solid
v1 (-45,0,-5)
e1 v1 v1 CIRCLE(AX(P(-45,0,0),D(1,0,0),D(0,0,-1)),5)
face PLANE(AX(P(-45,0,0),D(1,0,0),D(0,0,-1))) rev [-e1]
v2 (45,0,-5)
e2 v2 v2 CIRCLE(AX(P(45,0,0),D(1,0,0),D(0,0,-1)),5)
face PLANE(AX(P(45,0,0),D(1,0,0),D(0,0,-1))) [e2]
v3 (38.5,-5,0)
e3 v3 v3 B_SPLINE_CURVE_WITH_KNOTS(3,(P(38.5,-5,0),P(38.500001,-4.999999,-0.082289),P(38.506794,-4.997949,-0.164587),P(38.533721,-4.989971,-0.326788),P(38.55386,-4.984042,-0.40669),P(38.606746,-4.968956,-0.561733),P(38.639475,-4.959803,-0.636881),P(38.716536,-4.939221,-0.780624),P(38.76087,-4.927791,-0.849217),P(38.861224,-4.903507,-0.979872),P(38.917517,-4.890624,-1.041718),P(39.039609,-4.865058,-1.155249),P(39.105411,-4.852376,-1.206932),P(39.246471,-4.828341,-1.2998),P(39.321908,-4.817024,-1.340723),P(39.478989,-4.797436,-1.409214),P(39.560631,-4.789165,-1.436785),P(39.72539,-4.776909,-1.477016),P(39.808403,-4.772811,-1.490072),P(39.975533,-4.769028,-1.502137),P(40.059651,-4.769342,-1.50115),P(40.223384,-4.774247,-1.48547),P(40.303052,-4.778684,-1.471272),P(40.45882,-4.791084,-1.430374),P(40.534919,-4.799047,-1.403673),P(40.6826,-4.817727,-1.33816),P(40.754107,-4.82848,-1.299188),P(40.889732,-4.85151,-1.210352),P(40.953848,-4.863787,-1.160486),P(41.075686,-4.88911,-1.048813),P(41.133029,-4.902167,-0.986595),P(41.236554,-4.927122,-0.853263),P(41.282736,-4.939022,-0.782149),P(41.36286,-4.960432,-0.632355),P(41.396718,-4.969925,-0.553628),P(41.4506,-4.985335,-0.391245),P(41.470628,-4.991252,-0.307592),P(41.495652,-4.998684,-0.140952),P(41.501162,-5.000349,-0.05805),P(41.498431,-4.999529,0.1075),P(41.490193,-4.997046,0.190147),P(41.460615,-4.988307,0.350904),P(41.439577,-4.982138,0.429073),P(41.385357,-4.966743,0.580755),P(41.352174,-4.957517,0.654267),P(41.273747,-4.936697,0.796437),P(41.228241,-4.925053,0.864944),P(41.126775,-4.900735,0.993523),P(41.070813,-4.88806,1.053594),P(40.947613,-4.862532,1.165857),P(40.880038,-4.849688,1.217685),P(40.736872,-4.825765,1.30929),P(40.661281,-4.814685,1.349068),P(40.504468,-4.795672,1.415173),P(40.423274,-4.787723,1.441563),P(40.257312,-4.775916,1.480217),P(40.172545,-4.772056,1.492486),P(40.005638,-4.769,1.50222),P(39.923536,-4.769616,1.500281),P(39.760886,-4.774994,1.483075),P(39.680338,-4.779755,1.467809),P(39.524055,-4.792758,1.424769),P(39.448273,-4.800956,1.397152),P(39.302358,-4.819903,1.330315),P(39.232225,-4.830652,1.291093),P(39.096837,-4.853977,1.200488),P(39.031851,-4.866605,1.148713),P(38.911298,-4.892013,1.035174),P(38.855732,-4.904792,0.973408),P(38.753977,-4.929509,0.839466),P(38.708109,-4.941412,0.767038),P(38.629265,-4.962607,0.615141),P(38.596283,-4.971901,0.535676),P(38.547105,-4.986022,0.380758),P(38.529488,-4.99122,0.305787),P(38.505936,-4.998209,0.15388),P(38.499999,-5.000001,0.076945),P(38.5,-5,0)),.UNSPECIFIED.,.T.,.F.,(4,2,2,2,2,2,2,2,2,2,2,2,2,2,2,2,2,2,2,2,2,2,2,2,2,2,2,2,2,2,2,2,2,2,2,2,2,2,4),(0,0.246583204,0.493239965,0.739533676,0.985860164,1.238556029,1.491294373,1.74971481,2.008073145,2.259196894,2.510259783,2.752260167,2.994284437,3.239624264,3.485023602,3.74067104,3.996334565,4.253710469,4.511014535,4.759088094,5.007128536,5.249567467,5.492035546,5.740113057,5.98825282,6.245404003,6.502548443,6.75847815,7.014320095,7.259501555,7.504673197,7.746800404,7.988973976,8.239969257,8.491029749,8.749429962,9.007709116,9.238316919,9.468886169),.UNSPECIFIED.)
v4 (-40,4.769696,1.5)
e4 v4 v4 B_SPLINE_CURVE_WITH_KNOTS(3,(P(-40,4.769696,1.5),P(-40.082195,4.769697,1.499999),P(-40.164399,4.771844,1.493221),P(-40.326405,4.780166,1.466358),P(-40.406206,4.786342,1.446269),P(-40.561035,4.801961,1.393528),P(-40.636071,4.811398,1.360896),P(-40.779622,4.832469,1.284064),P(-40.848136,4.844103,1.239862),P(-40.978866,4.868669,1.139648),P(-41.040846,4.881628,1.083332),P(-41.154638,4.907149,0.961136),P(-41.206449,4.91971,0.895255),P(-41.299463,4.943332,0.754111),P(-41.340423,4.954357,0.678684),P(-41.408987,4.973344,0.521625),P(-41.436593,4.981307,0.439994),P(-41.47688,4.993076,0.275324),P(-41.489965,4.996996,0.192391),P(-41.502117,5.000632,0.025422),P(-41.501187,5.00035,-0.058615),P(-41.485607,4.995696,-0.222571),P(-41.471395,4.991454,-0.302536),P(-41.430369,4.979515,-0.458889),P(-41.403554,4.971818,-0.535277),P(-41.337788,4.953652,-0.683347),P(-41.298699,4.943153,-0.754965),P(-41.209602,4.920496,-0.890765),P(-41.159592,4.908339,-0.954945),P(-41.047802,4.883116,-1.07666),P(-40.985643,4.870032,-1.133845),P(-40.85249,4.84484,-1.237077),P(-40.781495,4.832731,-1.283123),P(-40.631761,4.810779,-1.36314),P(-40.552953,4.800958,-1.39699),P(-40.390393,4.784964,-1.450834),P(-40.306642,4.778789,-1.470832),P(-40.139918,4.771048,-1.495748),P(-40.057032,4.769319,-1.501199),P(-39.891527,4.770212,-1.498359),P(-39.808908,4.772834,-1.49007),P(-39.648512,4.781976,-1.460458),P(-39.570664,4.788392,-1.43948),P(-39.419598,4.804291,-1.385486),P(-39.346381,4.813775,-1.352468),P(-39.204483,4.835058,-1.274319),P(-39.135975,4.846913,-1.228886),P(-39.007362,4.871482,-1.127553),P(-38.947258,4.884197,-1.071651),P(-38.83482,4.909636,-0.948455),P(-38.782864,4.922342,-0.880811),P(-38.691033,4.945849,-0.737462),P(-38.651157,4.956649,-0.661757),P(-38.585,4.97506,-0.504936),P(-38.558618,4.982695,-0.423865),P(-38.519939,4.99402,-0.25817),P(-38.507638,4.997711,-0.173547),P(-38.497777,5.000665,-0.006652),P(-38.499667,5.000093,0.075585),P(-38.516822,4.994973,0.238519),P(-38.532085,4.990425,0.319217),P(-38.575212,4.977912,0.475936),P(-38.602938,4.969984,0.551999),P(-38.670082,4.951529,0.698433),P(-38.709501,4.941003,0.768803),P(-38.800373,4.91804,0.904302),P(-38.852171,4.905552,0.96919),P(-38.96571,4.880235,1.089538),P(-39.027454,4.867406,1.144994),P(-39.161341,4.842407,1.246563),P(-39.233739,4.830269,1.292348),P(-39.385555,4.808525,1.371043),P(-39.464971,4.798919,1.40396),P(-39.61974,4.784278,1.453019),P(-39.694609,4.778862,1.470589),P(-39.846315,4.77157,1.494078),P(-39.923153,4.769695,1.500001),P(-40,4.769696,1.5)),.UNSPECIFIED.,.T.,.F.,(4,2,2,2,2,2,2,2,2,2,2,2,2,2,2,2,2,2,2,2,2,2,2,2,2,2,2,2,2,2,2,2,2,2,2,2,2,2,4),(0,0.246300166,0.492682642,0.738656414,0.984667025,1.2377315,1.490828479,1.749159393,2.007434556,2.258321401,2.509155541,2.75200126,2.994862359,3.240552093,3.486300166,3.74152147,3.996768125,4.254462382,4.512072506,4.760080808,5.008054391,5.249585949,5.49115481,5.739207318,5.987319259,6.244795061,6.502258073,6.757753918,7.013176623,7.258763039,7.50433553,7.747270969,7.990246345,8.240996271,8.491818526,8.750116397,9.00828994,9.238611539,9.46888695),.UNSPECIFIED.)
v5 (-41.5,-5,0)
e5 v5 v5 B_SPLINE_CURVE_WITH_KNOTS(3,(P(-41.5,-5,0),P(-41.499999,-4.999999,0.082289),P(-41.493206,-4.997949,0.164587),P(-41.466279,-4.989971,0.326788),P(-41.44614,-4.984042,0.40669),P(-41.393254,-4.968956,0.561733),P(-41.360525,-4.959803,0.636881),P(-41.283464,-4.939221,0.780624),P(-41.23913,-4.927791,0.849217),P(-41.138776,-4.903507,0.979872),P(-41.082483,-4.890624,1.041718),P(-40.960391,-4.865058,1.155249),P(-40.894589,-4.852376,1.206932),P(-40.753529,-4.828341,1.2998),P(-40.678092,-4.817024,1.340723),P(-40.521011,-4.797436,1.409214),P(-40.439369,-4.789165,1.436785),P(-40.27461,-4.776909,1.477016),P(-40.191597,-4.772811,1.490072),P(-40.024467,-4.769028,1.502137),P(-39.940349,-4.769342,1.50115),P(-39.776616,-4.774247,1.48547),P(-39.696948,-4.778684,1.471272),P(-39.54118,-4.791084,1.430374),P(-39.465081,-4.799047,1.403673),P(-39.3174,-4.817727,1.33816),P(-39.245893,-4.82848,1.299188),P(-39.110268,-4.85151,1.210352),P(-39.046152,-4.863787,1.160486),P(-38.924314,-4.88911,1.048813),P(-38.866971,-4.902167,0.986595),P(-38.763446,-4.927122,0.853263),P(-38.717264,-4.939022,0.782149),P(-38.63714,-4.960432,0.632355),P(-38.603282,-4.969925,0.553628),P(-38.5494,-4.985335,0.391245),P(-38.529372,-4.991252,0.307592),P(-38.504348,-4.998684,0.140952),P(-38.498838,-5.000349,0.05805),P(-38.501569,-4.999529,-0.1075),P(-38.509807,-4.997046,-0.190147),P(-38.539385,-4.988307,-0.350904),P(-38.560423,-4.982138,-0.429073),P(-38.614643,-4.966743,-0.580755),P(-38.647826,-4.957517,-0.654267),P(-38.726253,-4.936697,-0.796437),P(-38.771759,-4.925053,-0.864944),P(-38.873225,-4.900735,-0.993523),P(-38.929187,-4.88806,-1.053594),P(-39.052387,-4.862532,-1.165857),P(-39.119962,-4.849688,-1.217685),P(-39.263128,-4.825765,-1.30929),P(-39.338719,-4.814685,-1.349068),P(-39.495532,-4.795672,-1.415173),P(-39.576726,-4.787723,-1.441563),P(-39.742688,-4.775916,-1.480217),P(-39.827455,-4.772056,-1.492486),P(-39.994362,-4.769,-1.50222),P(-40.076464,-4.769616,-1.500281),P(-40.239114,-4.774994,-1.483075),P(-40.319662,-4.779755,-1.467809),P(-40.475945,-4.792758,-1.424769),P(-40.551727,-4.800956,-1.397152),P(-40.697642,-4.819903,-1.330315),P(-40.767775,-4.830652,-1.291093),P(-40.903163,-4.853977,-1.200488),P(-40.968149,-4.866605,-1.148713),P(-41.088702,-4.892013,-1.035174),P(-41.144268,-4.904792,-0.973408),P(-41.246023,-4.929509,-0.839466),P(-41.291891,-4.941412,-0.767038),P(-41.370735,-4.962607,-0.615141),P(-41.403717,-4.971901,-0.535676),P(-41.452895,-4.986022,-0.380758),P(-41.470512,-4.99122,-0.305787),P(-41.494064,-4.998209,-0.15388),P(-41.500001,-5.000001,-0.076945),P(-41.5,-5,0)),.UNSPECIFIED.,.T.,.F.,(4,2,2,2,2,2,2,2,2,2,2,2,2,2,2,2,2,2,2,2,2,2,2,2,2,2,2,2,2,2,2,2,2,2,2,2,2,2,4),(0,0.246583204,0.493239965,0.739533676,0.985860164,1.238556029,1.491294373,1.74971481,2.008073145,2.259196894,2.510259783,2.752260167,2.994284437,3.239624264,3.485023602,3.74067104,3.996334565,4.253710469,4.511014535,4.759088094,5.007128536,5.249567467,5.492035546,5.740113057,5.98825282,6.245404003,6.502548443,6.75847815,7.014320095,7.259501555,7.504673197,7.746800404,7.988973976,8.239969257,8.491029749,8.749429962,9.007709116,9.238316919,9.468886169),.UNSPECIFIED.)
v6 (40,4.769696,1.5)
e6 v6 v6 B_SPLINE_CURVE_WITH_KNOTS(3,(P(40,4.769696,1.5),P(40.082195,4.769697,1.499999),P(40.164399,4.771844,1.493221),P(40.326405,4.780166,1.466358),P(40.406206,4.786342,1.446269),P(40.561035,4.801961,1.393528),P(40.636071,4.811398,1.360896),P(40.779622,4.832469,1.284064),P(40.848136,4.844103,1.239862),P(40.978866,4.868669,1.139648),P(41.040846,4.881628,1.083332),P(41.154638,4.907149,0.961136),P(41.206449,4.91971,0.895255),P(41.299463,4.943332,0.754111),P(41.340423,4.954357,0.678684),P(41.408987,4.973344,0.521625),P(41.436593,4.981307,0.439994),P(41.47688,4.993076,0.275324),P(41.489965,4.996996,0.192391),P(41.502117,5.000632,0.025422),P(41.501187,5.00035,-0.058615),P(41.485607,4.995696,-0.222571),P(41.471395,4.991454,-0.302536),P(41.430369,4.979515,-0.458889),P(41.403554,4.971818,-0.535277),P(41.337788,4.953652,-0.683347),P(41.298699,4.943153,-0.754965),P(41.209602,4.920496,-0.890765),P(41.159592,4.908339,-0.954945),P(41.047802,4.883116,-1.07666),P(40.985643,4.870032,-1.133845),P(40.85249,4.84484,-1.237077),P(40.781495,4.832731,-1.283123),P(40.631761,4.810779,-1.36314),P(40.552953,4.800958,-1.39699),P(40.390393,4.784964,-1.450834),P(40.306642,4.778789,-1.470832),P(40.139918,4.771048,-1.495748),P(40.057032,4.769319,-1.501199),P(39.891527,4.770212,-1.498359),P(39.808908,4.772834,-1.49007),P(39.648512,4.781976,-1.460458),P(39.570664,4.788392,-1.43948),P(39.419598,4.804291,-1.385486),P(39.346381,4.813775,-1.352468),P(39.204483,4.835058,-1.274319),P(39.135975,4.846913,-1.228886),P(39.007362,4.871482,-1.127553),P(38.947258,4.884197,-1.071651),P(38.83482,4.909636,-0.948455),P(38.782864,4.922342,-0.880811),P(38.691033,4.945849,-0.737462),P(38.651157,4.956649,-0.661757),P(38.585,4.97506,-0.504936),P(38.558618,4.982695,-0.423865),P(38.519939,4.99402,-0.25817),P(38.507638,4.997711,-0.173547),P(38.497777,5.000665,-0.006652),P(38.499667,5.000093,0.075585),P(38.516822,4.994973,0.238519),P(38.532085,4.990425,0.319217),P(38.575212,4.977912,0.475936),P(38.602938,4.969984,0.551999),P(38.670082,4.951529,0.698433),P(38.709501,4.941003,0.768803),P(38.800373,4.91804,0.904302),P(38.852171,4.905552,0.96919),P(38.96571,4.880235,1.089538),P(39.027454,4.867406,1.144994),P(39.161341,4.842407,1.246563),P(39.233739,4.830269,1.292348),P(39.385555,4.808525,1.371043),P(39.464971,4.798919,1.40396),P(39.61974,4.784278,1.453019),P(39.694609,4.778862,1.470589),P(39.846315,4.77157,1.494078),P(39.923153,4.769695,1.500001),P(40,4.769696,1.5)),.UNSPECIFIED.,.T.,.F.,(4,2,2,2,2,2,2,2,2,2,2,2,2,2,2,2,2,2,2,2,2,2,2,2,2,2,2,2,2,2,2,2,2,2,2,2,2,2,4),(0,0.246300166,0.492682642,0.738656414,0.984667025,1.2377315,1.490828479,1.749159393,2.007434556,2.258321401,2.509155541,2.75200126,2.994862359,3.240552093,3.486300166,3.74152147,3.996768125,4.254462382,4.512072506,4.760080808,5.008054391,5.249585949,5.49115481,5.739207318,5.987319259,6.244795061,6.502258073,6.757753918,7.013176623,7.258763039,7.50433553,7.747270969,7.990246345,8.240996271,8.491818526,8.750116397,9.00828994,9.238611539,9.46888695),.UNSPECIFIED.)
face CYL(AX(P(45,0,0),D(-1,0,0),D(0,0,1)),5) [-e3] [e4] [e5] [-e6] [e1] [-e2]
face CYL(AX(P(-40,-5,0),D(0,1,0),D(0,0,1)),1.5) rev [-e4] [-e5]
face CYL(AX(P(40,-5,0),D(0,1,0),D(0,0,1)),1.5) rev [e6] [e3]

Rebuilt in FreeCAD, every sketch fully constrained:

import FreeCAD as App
import Part
import Sketcher
from FreeCAD import Vector
Q = App.Units.Quantity

doc = App.newDocument("Part")
body = doc.addObject("PartDesign::Body", "Body")

# Sketch on YZ plane
sketch1 = body.newObject("Sketcher::SketchObject", "Sketch")
sketch1.AttachmentSupport = (doc.getObject("YZ_Plane"), [""])
sketch1.MapMode = "FlatFace"
sketch1.addGeometry(Part.Circle(Vector(0, 0, 0), Vector(0, 0, 1), 5), False)
sketch1.addConstraint(Sketcher.Constraint("Coincident", 0, 3, -1, 1))
sketch1.addConstraint(Sketcher.Constraint("Diameter", 0, Q("10 mm")))
pad1 = body.newObject("PartDesign::Pad", "Pad")
pad1.Profile = sketch1
pad1.Length = 90
pad1.Midplane = True

# Sketch on XZ plane
sketch2 = body.newObject("Sketcher::SketchObject", "Sketch001")
sketch2.AttachmentSupport = (doc.getObject("XZ_Plane"), [""])
sketch2.MapMode = "FlatFace"
sketch2.addGeometry(Part.Circle(Vector(-40, 0, 0), Vector(0, 0, 1), 1.5), False)
sketch2.addConstraint(Sketcher.Constraint("PointOnObject", 0, 3, -1))
sketch2.addConstraint(Sketcher.Constraint("Diameter", 0, Q("3 mm")))
sketch2.addConstraint(Sketcher.Constraint("DistanceX", 0, 3, -1, 1, Q("40 mm")))
pocket1 = body.newObject("PartDesign::Pocket", "Pocket")
pocket1.Profile = sketch2
pocket1.Length = 93.104336
pocket1.Midplane = True
doc.recompute()

mirrored = body.newObject("PartDesign::Mirrored", "Mirrored")
mirrored.Originals = [pocket1]
mirrored.MirrorPlane = (doc.getObject("YZ_Plane"), [""])
body.Tip = mirrored

doc.recompute()
